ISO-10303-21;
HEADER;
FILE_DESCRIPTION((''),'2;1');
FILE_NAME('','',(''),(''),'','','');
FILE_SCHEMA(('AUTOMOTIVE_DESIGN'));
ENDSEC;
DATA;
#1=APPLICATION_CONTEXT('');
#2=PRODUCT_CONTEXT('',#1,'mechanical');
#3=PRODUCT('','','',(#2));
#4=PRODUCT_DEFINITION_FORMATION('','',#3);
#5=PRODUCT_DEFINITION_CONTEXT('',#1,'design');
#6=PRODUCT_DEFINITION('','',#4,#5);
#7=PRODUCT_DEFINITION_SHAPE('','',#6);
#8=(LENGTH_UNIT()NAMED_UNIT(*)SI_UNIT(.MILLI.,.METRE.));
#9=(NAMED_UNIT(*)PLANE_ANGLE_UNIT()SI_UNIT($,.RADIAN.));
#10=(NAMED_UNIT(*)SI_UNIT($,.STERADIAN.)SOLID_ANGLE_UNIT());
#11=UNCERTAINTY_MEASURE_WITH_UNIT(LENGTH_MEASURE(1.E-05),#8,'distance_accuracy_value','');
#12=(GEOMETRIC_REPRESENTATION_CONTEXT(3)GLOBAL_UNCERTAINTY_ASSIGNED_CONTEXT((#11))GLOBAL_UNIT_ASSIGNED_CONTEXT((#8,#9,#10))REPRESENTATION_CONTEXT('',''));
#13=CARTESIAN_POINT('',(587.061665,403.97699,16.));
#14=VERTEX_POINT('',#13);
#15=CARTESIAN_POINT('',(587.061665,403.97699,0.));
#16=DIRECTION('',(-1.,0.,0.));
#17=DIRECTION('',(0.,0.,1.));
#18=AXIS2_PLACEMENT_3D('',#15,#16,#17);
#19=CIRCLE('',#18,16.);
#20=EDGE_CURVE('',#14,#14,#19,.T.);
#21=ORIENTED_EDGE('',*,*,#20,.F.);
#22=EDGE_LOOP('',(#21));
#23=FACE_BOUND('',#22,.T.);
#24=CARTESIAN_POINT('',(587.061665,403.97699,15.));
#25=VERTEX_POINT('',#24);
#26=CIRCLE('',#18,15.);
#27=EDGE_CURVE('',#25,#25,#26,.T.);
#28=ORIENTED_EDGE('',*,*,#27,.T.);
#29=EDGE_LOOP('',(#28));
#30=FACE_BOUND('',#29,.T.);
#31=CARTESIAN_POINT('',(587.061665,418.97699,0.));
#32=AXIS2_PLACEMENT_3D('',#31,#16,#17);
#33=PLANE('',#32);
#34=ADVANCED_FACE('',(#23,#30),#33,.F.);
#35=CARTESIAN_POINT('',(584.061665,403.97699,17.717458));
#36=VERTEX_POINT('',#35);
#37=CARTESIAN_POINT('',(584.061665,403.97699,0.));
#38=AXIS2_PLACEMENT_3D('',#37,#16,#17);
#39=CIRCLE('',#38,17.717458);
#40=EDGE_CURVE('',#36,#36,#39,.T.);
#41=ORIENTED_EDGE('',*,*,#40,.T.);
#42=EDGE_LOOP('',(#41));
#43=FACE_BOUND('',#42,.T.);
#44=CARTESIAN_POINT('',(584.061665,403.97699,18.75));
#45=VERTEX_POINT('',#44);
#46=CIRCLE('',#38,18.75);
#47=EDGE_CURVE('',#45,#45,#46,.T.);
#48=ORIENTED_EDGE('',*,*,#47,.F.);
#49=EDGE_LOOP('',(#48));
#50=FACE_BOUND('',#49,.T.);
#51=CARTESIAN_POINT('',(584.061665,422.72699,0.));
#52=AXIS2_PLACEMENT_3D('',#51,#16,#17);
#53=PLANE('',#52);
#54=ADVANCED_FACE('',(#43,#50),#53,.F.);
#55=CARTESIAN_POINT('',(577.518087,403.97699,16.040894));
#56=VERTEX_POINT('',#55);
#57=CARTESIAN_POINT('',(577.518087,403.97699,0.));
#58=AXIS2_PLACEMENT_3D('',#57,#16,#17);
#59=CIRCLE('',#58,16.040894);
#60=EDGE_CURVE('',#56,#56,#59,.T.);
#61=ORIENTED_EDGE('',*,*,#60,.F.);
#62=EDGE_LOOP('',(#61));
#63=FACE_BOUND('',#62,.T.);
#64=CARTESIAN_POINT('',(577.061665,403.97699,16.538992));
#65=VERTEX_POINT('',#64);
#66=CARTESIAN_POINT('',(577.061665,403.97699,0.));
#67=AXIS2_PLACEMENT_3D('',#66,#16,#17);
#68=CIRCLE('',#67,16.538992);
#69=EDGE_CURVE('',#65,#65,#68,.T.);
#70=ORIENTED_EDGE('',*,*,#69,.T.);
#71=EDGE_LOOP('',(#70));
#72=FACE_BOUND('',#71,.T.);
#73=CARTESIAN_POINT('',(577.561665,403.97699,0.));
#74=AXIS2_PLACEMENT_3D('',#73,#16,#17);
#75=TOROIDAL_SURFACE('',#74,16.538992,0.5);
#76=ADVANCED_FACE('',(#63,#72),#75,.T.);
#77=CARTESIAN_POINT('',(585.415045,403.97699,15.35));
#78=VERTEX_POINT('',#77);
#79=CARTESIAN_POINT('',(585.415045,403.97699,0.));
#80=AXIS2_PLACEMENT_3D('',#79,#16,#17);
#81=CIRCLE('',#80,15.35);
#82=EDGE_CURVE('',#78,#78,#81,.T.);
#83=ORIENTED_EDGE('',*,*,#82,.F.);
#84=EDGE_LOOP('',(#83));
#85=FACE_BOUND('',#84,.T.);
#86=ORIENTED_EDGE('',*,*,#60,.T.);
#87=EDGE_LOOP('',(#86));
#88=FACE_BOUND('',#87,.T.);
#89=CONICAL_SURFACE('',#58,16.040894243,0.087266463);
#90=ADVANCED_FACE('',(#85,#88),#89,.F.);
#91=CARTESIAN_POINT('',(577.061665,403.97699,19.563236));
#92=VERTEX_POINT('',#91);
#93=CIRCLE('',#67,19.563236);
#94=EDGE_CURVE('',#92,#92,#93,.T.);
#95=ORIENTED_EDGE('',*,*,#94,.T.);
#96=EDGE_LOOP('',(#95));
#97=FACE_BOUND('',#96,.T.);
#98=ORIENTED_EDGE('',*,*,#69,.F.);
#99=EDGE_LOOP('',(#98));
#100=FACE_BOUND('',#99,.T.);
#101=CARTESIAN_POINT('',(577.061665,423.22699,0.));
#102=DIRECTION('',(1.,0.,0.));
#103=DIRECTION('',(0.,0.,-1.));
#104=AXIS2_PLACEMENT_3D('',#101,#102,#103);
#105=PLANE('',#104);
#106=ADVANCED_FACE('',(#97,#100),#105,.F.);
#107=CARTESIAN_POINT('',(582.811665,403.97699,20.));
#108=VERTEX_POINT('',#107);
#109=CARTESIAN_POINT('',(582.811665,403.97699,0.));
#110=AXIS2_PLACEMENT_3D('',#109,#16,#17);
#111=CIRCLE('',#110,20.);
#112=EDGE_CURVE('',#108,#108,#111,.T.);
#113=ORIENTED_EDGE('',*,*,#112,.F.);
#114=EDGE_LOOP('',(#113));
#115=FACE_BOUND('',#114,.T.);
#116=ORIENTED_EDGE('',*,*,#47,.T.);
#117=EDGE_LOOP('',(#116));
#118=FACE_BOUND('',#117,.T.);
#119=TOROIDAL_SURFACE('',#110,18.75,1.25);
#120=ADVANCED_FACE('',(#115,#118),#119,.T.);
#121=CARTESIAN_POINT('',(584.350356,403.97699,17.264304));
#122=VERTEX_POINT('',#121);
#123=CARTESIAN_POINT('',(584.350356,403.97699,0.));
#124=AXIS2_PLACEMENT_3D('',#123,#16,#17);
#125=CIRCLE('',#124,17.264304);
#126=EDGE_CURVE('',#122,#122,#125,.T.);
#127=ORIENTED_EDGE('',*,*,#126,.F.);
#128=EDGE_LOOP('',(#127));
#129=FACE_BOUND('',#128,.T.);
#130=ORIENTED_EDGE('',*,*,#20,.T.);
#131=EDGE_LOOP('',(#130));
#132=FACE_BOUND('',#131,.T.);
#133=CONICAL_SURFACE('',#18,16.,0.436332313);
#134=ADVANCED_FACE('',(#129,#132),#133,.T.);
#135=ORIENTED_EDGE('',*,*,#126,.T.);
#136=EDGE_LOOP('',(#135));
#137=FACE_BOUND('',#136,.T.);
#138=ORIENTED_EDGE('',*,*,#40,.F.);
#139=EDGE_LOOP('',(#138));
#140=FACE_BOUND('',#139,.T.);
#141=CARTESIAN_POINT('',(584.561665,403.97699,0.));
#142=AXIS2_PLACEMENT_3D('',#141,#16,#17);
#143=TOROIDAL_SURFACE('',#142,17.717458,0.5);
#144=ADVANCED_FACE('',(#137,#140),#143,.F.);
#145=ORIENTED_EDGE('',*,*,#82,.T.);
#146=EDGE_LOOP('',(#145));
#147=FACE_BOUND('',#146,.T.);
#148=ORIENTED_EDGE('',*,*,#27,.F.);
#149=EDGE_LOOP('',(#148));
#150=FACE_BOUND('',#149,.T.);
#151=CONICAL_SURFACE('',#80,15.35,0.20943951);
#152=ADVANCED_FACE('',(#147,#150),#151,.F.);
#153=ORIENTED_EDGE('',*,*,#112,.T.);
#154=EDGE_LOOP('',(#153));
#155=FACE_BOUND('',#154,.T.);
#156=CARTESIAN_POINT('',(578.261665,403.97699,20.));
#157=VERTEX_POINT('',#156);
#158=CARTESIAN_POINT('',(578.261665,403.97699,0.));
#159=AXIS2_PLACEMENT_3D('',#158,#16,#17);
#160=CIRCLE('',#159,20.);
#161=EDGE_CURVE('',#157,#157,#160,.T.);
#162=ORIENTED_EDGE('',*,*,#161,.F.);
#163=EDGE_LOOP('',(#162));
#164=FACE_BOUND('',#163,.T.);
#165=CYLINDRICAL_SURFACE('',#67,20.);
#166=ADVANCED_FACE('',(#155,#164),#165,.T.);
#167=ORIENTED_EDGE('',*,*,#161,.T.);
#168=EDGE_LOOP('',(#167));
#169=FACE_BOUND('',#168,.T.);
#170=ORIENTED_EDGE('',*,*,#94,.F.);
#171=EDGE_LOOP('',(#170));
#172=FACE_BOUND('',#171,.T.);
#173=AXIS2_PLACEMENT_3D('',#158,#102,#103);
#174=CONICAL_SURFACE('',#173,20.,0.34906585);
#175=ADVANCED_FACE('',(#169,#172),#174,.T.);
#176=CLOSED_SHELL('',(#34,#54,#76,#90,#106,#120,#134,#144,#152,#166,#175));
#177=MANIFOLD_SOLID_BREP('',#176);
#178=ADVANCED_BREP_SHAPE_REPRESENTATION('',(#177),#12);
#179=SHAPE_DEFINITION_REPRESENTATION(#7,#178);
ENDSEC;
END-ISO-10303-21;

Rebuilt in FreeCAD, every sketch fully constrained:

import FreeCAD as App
import Part
import Sketcher

doc = App.newDocument("Part")
body = doc.addObject("PartDesign::Body", "Body")

# Sketch on XY plane
sketch1 = doc.addObject("Sketcher::SketchObject", "Sketch")
body.addObject(sketch1)
sketch1.AttachmentSupport = (doc.XY_Plane, [""])
sketch1.MapMode = "FlatFace"
sketch1.addGeometry([
    Part.BSplineCurve([App.Vector(577.061665, 420.515982, 0), App.Vector(577.061665, 420.242967, 0), App.Vector(577.246111, 420.041679, 0), App.Vector(577.518087, 420.017884, 0)], [4, 4], [0, 1], False, 3, [1, 0.824851558, 0.824851558, 1], False),  # 0
    Part.LineSegment(App.Vector(577.518087, 420.017884, 0), App.Vector(585.415045, 419.32699, 0)),  # 1
    Part.LineSegment(App.Vector(585.415045, 419.32699, 0), App.Vector(587.061665, 418.97699, 0)),  # 2
    Part.LineSegment(App.Vector(587.061665, 418.97699, 0), App.Vector(587.061665, 419.97699, 0)),  # 3
    Part.LineSegment(App.Vector(587.061665, 419.97699, 0), App.Vector(584.350356, 421.241294, 0)),  # 4
    Part.BSplineCurve([App.Vector(584.061665, 421.694448, 0), App.Vector(584.061665, 421.494469, 0), App.Vector(584.169114, 421.325809, 0), App.Vector(584.350356, 421.241294, 0)], [4, 4], [0, 1], False, 3, [1, 0.895594297, 0.895594297, 1], False),  # 5
    Part.LineSegment(App.Vector(584.061665, 421.694448, 0), App.Vector(584.061665, 422.72699, 0)),  # 6
    Part.BSplineCurve([App.Vector(584.061665, 422.72699, 0), App.Vector(584.061665, 423.459223, 0), App.Vector(583.543898, 423.97699, 0), App.Vector(582.811665, 423.97699, 0)], [4, 4], [0, 1], False, 3, [1, 0.804737854, 0.804737854, 1], False),  # 7
    Part.LineSegment(App.Vector(582.811665, 423.97699, 0), App.Vector(578.261665, 423.97699, 0)),  # 8
    Part.LineSegment(App.Vector(578.261665, 423.97699, 0), App.Vector(577.061665, 423.540226, 0)),  # 9
    Part.LineSegment(App.Vector(577.061665, 423.540226, 0), App.Vector(577.061665, 420.515982, 0)),  # 10
], False)
sketch1.addGeometry(Part.LineSegment(App.Vector(577.061665, 403.97699, 0), App.Vector(587.061665, 403.97699, 0)), True)  # axis
sketch1.addConstraint([
    Sketcher.Constraint("Block", 0),
    Sketcher.Constraint("Block", 5),
    Sketcher.Constraint("Block", 7),
    Sketcher.Constraint("Coincident", 0, 2, 1, 1),
    Sketcher.Constraint("Coincident", 1, 2, 2, 1),
    Sketcher.Constraint("Coincident", 2, 2, 3, 1),
    Sketcher.Constraint("Coincident", 3, 2, 4, 1),
    Sketcher.Constraint("Coincident", 4, 2, 5, 2),
    Sketcher.Constraint("Coincident", 5, 1, 6, 1),
    Sketcher.Constraint("Coincident", 6, 2, 7, 1),
    Sketcher.Constraint("Coincident", 7, 2, 8, 1),
    Sketcher.Constraint("Coincident", 8, 2, 9, 1),
    Sketcher.Constraint("Coincident", 9, 2, 10, 1),
    Sketcher.Constraint("Coincident", 10, 2, 0, 1),
    Sketcher.Constraint("Vertical", 3),
    Sketcher.Constraint("Horizontal", 8),
    Sketcher.Constraint("Vertical", 10),
    Sketcher.Constraint("Horizontal", 11),
    Sketcher.Constraint("DistanceX", 11, 1, 11, 2, 10.0),
    Sketcher.Constraint("DistanceY", 3, 1, 3, 2, 1.0),
    Sketcher.Constraint("DistanceX", 6, 2, 3, 2, 3.0),
    Sketcher.Constraint("DistanceY", 3, 2, 8, 2, 4.0),
    Sketcher.Constraint("DistanceX", 11, 1, 2, 2, 10.0),
    Sketcher.Constraint("DistanceY", 11, 1, 2, 2, 15.0),
    Sketcher.Constraint("DistanceX", 8, 2, 8, 1, 4.55),
    Sketcher.Constraint("DistanceY", 1, 2, 6, 2, 3.4),
    Sketcher.Constraint("DistanceY", 10, 2, 10, 1, 3.024244),
    Sketcher.Constraint("DistanceX", 1, 2, 2, 2, 1.646621),
])
revolution = doc.addObject("PartDesign::Revolution", "Revolution")
body.addObject(revolution)
revolution.Profile = sketch1
revolution.ReferenceAxis = (sketch1, ["Axis0"])
revolution.Angle = 360

doc.recompute()
